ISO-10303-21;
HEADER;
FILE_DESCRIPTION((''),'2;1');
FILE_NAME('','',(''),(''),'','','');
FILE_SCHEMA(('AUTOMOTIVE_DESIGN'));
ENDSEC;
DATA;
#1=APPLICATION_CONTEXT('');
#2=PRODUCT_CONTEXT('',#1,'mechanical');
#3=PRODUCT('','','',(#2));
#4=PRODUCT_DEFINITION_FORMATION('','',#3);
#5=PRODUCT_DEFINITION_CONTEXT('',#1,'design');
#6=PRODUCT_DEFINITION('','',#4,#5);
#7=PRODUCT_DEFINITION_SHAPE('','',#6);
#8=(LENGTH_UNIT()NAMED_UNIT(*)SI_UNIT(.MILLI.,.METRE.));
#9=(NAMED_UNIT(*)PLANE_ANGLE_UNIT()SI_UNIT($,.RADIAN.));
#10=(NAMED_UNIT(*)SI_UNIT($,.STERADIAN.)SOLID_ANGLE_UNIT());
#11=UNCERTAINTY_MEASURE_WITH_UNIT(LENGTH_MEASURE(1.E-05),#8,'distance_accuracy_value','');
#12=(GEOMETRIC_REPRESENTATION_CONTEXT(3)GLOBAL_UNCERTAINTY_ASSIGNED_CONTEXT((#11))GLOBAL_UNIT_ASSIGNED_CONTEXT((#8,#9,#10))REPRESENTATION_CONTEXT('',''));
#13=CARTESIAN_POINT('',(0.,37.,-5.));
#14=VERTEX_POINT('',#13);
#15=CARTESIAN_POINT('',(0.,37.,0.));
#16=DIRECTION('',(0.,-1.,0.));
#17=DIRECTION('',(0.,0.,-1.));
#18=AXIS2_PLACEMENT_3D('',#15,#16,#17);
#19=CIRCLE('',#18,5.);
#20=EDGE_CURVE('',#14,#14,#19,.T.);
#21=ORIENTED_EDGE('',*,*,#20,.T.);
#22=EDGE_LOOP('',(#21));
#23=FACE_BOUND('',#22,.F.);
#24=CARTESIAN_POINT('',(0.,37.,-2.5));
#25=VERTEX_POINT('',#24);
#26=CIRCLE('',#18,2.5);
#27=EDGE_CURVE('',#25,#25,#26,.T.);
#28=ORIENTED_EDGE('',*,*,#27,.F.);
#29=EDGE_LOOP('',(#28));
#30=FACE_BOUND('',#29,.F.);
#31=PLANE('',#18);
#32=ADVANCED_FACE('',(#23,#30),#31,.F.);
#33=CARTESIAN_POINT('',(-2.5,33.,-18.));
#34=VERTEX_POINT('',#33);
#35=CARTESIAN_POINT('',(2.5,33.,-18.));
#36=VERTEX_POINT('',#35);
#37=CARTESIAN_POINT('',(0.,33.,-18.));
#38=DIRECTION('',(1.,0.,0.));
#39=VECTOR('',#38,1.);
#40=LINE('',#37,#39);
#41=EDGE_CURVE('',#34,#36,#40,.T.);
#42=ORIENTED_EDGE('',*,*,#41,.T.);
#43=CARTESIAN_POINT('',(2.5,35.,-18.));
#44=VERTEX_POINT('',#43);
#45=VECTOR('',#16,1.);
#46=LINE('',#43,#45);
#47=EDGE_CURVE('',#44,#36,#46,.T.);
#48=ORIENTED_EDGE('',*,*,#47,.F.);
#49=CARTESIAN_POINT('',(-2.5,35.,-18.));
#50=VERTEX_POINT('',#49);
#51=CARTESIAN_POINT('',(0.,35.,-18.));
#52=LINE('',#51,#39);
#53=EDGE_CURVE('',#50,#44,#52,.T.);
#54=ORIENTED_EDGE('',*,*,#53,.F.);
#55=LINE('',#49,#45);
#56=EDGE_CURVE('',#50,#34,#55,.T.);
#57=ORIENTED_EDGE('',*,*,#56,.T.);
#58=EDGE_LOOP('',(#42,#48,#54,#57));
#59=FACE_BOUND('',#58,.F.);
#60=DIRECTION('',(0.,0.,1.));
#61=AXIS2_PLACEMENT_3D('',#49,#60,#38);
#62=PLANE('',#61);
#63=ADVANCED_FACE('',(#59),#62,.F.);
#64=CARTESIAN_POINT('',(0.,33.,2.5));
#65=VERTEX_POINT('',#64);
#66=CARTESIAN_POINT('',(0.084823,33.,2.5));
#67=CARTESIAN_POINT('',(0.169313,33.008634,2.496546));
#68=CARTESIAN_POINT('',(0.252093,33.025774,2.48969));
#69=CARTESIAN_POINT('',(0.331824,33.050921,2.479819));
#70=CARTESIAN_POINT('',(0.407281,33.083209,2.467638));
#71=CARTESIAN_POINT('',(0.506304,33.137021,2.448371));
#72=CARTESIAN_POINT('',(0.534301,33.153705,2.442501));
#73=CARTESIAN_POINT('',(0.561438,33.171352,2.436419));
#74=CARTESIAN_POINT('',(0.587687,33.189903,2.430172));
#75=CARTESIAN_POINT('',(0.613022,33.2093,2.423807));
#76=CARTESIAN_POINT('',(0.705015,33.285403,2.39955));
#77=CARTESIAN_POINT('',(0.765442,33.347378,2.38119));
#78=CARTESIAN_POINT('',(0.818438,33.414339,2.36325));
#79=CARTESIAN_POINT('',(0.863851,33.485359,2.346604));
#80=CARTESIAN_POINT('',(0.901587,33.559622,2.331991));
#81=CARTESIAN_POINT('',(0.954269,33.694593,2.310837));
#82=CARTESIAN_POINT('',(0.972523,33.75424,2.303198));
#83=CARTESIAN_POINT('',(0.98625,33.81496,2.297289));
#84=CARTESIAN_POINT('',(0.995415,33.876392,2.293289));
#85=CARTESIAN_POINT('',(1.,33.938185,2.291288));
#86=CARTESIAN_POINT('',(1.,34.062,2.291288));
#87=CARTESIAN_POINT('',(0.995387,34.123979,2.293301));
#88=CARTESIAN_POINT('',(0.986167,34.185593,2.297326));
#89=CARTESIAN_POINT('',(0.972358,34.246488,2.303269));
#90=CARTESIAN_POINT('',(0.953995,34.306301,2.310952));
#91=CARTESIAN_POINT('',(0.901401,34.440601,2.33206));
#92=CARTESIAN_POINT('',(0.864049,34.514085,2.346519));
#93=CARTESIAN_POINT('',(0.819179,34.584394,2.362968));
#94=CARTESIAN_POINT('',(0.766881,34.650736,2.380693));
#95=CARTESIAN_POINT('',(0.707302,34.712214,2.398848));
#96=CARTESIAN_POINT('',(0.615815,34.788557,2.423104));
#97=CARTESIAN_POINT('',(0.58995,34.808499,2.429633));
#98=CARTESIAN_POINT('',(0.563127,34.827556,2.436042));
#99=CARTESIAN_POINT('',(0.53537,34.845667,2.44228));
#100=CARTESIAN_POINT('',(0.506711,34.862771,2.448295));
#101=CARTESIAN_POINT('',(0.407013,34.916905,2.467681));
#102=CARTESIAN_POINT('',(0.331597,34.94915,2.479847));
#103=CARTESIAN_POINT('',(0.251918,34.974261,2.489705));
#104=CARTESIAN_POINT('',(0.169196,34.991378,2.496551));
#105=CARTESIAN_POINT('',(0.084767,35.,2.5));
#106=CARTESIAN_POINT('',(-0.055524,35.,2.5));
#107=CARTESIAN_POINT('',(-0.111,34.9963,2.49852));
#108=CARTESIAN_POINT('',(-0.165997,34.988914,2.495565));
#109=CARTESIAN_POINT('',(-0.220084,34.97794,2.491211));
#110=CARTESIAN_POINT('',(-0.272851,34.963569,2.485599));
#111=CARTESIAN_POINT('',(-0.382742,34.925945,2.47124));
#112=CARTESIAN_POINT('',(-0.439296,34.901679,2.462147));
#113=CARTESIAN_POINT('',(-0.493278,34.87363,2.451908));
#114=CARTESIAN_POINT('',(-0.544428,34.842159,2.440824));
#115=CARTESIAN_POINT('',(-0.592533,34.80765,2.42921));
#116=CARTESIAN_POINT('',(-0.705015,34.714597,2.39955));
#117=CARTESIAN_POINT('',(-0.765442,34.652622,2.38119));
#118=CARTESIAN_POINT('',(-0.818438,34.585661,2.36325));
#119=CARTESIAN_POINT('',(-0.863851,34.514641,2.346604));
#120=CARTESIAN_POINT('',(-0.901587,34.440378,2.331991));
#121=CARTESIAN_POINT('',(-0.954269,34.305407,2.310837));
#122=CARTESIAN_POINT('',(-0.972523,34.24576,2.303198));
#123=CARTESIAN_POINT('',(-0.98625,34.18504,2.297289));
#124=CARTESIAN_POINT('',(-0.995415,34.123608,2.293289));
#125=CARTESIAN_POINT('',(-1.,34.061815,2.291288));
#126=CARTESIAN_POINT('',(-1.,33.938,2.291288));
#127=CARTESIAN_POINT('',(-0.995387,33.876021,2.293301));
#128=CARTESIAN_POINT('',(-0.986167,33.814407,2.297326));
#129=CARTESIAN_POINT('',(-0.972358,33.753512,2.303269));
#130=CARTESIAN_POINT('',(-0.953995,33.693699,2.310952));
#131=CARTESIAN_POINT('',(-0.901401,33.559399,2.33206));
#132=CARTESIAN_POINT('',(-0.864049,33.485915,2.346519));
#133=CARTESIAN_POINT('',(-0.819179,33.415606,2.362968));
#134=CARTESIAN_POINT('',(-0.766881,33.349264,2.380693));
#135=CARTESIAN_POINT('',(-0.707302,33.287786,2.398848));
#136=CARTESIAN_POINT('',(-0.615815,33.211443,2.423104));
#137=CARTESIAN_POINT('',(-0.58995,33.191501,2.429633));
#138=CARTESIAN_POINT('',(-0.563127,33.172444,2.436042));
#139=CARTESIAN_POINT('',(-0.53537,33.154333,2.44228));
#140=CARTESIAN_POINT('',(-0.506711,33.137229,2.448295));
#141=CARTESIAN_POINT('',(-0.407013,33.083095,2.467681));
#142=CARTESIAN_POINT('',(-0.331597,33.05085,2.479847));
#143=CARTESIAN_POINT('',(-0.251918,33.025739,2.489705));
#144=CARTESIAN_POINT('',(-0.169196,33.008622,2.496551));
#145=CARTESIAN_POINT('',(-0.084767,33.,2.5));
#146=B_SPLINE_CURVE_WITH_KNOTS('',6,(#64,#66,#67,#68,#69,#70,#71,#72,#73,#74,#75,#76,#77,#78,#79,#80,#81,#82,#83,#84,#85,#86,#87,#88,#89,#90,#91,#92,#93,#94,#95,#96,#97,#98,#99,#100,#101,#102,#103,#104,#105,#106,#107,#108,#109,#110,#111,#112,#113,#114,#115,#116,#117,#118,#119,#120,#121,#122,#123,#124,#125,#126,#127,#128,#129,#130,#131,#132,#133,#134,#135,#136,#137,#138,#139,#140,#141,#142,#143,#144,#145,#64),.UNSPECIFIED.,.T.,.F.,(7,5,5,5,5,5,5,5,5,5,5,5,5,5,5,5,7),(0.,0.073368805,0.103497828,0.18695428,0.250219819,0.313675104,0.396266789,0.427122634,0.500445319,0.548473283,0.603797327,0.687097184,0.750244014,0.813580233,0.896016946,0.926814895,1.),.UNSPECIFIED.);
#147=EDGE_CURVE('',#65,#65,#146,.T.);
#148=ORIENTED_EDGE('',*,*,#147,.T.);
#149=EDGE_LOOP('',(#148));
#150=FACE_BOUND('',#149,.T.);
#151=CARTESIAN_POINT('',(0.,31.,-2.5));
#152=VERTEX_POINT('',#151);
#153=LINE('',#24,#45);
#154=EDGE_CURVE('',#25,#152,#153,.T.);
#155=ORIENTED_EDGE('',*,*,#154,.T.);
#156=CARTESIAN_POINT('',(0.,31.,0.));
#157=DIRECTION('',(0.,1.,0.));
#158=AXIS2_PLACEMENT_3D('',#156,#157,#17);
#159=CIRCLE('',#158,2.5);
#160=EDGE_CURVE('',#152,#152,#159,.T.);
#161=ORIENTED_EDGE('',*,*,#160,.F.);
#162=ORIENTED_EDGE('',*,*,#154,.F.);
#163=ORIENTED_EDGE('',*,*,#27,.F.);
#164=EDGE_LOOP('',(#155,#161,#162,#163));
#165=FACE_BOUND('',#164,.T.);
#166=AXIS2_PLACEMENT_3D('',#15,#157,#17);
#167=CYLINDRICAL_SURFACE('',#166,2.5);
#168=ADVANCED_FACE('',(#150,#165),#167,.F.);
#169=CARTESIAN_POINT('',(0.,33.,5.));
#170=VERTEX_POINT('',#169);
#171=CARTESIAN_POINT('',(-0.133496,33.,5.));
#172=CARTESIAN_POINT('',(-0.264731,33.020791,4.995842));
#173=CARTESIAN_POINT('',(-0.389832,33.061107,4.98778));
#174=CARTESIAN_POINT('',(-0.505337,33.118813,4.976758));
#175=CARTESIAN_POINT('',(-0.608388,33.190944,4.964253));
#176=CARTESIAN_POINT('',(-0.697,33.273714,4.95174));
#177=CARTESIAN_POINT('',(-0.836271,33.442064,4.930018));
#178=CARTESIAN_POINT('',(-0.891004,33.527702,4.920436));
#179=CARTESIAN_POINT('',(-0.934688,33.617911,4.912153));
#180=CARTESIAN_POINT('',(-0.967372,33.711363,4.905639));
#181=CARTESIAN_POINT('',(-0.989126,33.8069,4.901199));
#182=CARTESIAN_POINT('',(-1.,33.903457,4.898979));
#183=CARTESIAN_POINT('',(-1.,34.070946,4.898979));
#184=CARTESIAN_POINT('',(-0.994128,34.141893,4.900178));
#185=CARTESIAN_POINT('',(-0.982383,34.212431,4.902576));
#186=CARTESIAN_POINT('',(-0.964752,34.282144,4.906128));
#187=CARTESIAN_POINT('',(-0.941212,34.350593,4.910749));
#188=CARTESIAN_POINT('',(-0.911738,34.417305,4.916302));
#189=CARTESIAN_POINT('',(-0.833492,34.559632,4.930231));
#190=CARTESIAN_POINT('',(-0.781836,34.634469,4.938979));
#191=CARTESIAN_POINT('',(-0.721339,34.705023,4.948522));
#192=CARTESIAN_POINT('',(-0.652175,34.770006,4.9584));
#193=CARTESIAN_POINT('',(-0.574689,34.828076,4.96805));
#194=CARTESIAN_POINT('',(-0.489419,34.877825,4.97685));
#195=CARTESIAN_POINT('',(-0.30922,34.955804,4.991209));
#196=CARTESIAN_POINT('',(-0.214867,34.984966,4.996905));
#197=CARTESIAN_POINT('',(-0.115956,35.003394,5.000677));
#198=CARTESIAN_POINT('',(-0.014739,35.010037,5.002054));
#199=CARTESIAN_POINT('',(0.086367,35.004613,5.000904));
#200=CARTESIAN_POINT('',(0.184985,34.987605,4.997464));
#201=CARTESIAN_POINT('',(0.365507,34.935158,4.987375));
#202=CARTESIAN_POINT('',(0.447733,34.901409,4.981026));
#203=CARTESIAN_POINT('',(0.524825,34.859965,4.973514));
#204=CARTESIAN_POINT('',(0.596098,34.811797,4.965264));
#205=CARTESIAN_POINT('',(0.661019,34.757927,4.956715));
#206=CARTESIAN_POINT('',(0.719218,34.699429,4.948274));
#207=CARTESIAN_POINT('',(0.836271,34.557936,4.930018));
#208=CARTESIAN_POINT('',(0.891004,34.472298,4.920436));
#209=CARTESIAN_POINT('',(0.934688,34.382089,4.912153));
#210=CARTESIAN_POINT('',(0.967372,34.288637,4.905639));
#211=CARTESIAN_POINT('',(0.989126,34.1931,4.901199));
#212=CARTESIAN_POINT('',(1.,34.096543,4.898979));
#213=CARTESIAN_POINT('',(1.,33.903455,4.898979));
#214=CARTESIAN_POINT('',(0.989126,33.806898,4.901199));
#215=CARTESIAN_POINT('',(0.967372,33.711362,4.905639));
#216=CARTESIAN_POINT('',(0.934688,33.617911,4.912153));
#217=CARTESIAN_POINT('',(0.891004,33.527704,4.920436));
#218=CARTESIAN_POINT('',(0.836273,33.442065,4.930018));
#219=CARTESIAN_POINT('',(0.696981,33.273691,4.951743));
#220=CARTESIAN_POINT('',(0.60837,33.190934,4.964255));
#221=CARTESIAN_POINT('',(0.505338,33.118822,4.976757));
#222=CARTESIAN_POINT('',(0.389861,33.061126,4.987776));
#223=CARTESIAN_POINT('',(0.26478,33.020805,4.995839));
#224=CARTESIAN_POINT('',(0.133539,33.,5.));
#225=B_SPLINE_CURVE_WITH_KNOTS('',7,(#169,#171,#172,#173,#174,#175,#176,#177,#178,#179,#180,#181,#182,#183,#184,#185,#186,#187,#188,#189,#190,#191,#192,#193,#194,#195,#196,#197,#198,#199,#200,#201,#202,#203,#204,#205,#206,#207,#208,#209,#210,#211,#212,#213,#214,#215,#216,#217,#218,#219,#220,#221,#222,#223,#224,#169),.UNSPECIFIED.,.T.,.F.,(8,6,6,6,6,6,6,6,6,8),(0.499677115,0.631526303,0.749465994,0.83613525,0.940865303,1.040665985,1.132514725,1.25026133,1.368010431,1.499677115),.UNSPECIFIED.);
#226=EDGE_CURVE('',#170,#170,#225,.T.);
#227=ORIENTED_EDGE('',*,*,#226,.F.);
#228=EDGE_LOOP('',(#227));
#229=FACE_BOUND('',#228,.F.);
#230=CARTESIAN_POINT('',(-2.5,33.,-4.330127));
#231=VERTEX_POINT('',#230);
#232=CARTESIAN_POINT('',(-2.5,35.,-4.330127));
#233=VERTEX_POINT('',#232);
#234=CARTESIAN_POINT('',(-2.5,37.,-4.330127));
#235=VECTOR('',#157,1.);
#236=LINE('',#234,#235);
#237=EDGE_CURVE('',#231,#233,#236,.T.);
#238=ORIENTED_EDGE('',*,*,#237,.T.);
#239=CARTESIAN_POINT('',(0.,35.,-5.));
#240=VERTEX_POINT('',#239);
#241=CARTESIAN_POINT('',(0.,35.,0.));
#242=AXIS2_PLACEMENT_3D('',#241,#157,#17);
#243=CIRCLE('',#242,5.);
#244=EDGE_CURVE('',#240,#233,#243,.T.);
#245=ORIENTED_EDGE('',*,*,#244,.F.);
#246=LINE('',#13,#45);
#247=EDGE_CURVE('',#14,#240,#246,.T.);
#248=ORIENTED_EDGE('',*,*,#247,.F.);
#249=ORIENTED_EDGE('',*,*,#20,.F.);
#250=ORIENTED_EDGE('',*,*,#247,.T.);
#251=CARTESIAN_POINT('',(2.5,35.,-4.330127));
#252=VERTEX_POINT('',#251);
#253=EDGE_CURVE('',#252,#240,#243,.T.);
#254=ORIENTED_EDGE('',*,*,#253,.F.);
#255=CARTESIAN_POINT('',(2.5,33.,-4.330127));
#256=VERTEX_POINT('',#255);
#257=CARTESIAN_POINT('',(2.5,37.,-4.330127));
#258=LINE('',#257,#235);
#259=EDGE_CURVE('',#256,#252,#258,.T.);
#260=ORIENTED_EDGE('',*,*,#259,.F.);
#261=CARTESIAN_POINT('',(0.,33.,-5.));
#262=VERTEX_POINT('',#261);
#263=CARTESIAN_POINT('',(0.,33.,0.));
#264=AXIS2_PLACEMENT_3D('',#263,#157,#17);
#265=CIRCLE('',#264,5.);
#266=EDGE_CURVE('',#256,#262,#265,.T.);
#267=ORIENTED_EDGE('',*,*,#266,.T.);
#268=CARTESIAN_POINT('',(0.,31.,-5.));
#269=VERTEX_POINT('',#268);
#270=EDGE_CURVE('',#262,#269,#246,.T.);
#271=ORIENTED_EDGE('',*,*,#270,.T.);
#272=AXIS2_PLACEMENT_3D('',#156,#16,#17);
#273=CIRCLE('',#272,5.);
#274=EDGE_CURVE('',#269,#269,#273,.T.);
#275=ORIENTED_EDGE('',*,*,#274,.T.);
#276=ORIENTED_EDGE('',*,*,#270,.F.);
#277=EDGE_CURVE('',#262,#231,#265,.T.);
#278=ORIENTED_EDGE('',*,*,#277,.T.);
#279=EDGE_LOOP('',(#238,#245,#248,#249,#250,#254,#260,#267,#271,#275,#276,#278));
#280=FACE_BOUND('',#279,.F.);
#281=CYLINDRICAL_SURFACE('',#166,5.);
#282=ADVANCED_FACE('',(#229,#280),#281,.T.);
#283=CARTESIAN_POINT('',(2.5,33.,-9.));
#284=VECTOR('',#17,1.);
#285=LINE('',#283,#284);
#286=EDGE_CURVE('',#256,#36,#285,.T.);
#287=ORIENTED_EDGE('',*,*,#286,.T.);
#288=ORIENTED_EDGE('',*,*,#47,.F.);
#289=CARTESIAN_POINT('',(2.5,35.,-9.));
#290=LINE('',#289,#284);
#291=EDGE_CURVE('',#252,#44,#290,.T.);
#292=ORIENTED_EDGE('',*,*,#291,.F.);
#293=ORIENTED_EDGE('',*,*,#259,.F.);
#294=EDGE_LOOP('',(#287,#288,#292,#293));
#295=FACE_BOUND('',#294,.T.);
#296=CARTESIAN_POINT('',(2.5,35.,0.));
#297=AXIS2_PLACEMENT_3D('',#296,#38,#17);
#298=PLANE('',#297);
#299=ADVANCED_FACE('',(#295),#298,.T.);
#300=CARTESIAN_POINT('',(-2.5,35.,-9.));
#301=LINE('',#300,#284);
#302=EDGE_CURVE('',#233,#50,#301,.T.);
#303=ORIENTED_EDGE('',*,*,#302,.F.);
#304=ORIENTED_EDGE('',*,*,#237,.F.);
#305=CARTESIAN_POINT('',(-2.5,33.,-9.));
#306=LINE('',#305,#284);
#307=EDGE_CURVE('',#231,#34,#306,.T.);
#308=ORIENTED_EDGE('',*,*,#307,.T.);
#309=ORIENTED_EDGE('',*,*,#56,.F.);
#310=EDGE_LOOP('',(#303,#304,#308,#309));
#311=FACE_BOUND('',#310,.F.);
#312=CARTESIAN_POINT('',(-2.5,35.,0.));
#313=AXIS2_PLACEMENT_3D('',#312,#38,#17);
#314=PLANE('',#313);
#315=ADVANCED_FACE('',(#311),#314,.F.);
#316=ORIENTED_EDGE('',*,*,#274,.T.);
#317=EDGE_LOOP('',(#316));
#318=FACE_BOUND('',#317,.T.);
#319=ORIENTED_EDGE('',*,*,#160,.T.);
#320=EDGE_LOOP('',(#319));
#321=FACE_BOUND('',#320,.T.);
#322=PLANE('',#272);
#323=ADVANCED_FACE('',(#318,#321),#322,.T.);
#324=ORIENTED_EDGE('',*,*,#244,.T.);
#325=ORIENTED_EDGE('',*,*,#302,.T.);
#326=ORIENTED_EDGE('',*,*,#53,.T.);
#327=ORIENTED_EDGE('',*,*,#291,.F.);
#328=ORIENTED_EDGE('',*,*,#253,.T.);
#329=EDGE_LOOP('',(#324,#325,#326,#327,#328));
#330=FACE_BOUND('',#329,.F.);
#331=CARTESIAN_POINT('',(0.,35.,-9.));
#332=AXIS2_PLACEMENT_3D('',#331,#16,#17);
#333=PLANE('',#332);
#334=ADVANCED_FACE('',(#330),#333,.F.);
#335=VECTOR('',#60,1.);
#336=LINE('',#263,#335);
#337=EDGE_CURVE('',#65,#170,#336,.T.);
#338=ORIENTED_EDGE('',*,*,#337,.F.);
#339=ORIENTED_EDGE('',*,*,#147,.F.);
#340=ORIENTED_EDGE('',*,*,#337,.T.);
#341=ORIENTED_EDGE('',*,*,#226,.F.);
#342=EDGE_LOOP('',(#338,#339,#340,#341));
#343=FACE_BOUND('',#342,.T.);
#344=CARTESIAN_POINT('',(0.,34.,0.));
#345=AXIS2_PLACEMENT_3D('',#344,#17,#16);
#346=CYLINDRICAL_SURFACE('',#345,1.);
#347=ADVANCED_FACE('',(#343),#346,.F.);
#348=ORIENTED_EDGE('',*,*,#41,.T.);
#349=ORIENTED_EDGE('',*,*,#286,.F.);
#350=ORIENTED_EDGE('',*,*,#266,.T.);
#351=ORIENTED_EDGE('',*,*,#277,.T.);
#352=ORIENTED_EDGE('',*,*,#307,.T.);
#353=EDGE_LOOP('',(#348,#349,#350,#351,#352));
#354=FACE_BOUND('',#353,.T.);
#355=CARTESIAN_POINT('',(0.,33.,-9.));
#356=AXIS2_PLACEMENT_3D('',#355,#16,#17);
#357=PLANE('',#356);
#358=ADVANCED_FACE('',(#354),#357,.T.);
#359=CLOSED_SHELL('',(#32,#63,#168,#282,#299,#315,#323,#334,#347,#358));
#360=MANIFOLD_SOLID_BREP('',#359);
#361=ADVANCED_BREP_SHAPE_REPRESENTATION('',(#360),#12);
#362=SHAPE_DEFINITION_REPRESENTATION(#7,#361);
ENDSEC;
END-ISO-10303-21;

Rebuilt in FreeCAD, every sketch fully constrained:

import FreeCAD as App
import Part
import Sketcher
from FreeCAD import Vector


def add_polygon(sketch, points):
    """Adds a closed chain of lines whose ends are joined by coincident constraints."""
    first, n = sketch.GeometryCount, len(points)
    for a, b in zip(points, points[1:] + points[:1]):
        sketch.addGeometry(Part.LineSegment(App.Vector(*a, 0), App.Vector(*b, 0)), False)
    for i in range(n):
        sketch.addConstraint(Sketcher.Constraint("Coincident", first + i, 2, first + (i + 1) % n, 1))

doc = App.newDocument("Part")
body = doc.addObject("PartDesign::Body", "Body")

# Sketch on YZ plane
sketch1 = body.newObject("Sketcher::SketchObject", "Sketch")
sketch1.AttachmentSupport = (doc.getObject("YZ_Plane"), [""])
sketch1.MapMode = "FlatFace"
sketch1.addGeometry(Part.Circle(Vector(0, 3, 0), Vector(0, 0, 1), 1), False)
sketch1.addConstraint([
    Sketcher.Constraint("PointOnObject", 0, 3, -2),
    Sketcher.Constraint("Diameter", 0, 2.0),
    Sketcher.Constraint("DistanceY", -1, 1, 0, 3, 3.0),
])
pad1 = body.newObject("PartDesign::Pad", "Pad")
pad1.Profile = sketch1
pad1.Length = 5
pad1.Reversed = True
body2 = doc.addObject("PartDesign::Body", "Body001")

# Sketch on XY plane
sketch2 = body2.newObject("Sketcher::SketchObject", "Sketch001")
sketch2.AttachmentSupport = (doc.getObject("XY_Plane001"), [""])
sketch2.MapMode = "FlatFace"
sketch2.addGeometry(Part.Circle(Vector(0, 0, 0), Vector(0, 0, 1), 2.5), False)
sketch2.addConstraint([
    Sketcher.Constraint("Coincident", 0, 3, -1, 1),
    Sketcher.Constraint("Diameter", 0, 5.0),
])
pad2 = body2.newObject("PartDesign::Pad", "Pad001")
pad2.Profile = sketch2
pad2.Length = 8
doc.recompute()

boolean = body2.newObject("PartDesign::Boolean", "Boolean")
boolean.Type = "Fuse"
boolean.addObjects([body])
body3 = doc.addObject("PartDesign::Body", "Body002")

# Sketch on XY plane
sketch3 = body3.newObject("Sketcher::SketchObject", "Sketch002")
sketch3.AttachmentSupport = (doc.getObject("XY_Plane002"), [""])
sketch3.MapMode = "FlatFace"
sketch3.addGeometry(Part.Circle(Vector(0, 0, 0), Vector(0, 0, 1), 5), False)
sketch3.addConstraint([
    Sketcher.Constraint("Coincident", 0, 3, -1, 1),
    Sketcher.Constraint("Diameter", 0, 10.0),
])
pad3 = body3.newObject("PartDesign::Pad", "Pad002")
pad3.Profile = sketch3
pad3.Length = 6
body4 = doc.addObject("PartDesign::Body", "Body003")

# Sketch on XY plane
sketch4 = body4.newObject("Sketcher::SketchObject", "Sketch003")
sketch4.AttachmentSupport = (doc.getObject("XY_Plane003"), [""])
sketch4.MapMode = "FlatFace"
sketch4.AttachmentOffset = App.Placement(Vector(0, 0, 2), App.Rotation())
add_polygon(sketch4, [(0, 2.5), (0, -2.5), (18, -2.5), (18, 2.5)])  # lines 0-3
sketch4.addConstraint([
    Sketcher.Constraint("Vertical", 0),
    Sketcher.Constraint("Horizontal", 1),
    Sketcher.Constraint("Vertical", 2),
    Sketcher.Constraint("Horizontal", 3),
    Sketcher.Constraint("Symmetric", 0, 2, 3, 2, -1, 1),
    Sketcher.Constraint("DistanceX", 1, 1, 1, 2, 18.0),
    Sketcher.Constraint("DistanceY", 0, 2, 0, 1, 5.0),
])
pad4 = body4.newObject("PartDesign::Pad", "Pad003")
pad4.Profile = sketch4
pad4.Length = 2
doc.recompute()

boolean2 = body4.newObject("PartDesign::Boolean", "Boolean001")
boolean2.Type = "Fuse"
boolean2.addObjects([body3])
doc.recompute()

boolean3 = body4.newObject("PartDesign::Boolean", "Boolean002")
boolean3.Type = "Cut"
boolean3.addObjects([body2])
body5 = doc.addObject("PartDesign::Body", "Body004")
doc.recompute()

body4.Placement = App.Placement(Vector(0, 0, 0), App.Rotation(Vector(0, 1, 0), 90))
boolean4 = body5.newObject("PartDesign::Boolean", "Boolean003")
boolean4.Type = "Fuse"
boolean4.addObjects([body4])
body6 = doc.addObject("PartDesign::Body", "Body005")
doc.recompute()

body5.Placement = App.Placement(Vector(0, 37, 0), App.Rotation(Vector(0, 0, 1), 270))
boolean5 = body6.newObject("PartDesign::Boolean", "Boolean004")
boolean5.Type = "Fuse"
boolean5.addObjects([body5])

doc.recompute()
